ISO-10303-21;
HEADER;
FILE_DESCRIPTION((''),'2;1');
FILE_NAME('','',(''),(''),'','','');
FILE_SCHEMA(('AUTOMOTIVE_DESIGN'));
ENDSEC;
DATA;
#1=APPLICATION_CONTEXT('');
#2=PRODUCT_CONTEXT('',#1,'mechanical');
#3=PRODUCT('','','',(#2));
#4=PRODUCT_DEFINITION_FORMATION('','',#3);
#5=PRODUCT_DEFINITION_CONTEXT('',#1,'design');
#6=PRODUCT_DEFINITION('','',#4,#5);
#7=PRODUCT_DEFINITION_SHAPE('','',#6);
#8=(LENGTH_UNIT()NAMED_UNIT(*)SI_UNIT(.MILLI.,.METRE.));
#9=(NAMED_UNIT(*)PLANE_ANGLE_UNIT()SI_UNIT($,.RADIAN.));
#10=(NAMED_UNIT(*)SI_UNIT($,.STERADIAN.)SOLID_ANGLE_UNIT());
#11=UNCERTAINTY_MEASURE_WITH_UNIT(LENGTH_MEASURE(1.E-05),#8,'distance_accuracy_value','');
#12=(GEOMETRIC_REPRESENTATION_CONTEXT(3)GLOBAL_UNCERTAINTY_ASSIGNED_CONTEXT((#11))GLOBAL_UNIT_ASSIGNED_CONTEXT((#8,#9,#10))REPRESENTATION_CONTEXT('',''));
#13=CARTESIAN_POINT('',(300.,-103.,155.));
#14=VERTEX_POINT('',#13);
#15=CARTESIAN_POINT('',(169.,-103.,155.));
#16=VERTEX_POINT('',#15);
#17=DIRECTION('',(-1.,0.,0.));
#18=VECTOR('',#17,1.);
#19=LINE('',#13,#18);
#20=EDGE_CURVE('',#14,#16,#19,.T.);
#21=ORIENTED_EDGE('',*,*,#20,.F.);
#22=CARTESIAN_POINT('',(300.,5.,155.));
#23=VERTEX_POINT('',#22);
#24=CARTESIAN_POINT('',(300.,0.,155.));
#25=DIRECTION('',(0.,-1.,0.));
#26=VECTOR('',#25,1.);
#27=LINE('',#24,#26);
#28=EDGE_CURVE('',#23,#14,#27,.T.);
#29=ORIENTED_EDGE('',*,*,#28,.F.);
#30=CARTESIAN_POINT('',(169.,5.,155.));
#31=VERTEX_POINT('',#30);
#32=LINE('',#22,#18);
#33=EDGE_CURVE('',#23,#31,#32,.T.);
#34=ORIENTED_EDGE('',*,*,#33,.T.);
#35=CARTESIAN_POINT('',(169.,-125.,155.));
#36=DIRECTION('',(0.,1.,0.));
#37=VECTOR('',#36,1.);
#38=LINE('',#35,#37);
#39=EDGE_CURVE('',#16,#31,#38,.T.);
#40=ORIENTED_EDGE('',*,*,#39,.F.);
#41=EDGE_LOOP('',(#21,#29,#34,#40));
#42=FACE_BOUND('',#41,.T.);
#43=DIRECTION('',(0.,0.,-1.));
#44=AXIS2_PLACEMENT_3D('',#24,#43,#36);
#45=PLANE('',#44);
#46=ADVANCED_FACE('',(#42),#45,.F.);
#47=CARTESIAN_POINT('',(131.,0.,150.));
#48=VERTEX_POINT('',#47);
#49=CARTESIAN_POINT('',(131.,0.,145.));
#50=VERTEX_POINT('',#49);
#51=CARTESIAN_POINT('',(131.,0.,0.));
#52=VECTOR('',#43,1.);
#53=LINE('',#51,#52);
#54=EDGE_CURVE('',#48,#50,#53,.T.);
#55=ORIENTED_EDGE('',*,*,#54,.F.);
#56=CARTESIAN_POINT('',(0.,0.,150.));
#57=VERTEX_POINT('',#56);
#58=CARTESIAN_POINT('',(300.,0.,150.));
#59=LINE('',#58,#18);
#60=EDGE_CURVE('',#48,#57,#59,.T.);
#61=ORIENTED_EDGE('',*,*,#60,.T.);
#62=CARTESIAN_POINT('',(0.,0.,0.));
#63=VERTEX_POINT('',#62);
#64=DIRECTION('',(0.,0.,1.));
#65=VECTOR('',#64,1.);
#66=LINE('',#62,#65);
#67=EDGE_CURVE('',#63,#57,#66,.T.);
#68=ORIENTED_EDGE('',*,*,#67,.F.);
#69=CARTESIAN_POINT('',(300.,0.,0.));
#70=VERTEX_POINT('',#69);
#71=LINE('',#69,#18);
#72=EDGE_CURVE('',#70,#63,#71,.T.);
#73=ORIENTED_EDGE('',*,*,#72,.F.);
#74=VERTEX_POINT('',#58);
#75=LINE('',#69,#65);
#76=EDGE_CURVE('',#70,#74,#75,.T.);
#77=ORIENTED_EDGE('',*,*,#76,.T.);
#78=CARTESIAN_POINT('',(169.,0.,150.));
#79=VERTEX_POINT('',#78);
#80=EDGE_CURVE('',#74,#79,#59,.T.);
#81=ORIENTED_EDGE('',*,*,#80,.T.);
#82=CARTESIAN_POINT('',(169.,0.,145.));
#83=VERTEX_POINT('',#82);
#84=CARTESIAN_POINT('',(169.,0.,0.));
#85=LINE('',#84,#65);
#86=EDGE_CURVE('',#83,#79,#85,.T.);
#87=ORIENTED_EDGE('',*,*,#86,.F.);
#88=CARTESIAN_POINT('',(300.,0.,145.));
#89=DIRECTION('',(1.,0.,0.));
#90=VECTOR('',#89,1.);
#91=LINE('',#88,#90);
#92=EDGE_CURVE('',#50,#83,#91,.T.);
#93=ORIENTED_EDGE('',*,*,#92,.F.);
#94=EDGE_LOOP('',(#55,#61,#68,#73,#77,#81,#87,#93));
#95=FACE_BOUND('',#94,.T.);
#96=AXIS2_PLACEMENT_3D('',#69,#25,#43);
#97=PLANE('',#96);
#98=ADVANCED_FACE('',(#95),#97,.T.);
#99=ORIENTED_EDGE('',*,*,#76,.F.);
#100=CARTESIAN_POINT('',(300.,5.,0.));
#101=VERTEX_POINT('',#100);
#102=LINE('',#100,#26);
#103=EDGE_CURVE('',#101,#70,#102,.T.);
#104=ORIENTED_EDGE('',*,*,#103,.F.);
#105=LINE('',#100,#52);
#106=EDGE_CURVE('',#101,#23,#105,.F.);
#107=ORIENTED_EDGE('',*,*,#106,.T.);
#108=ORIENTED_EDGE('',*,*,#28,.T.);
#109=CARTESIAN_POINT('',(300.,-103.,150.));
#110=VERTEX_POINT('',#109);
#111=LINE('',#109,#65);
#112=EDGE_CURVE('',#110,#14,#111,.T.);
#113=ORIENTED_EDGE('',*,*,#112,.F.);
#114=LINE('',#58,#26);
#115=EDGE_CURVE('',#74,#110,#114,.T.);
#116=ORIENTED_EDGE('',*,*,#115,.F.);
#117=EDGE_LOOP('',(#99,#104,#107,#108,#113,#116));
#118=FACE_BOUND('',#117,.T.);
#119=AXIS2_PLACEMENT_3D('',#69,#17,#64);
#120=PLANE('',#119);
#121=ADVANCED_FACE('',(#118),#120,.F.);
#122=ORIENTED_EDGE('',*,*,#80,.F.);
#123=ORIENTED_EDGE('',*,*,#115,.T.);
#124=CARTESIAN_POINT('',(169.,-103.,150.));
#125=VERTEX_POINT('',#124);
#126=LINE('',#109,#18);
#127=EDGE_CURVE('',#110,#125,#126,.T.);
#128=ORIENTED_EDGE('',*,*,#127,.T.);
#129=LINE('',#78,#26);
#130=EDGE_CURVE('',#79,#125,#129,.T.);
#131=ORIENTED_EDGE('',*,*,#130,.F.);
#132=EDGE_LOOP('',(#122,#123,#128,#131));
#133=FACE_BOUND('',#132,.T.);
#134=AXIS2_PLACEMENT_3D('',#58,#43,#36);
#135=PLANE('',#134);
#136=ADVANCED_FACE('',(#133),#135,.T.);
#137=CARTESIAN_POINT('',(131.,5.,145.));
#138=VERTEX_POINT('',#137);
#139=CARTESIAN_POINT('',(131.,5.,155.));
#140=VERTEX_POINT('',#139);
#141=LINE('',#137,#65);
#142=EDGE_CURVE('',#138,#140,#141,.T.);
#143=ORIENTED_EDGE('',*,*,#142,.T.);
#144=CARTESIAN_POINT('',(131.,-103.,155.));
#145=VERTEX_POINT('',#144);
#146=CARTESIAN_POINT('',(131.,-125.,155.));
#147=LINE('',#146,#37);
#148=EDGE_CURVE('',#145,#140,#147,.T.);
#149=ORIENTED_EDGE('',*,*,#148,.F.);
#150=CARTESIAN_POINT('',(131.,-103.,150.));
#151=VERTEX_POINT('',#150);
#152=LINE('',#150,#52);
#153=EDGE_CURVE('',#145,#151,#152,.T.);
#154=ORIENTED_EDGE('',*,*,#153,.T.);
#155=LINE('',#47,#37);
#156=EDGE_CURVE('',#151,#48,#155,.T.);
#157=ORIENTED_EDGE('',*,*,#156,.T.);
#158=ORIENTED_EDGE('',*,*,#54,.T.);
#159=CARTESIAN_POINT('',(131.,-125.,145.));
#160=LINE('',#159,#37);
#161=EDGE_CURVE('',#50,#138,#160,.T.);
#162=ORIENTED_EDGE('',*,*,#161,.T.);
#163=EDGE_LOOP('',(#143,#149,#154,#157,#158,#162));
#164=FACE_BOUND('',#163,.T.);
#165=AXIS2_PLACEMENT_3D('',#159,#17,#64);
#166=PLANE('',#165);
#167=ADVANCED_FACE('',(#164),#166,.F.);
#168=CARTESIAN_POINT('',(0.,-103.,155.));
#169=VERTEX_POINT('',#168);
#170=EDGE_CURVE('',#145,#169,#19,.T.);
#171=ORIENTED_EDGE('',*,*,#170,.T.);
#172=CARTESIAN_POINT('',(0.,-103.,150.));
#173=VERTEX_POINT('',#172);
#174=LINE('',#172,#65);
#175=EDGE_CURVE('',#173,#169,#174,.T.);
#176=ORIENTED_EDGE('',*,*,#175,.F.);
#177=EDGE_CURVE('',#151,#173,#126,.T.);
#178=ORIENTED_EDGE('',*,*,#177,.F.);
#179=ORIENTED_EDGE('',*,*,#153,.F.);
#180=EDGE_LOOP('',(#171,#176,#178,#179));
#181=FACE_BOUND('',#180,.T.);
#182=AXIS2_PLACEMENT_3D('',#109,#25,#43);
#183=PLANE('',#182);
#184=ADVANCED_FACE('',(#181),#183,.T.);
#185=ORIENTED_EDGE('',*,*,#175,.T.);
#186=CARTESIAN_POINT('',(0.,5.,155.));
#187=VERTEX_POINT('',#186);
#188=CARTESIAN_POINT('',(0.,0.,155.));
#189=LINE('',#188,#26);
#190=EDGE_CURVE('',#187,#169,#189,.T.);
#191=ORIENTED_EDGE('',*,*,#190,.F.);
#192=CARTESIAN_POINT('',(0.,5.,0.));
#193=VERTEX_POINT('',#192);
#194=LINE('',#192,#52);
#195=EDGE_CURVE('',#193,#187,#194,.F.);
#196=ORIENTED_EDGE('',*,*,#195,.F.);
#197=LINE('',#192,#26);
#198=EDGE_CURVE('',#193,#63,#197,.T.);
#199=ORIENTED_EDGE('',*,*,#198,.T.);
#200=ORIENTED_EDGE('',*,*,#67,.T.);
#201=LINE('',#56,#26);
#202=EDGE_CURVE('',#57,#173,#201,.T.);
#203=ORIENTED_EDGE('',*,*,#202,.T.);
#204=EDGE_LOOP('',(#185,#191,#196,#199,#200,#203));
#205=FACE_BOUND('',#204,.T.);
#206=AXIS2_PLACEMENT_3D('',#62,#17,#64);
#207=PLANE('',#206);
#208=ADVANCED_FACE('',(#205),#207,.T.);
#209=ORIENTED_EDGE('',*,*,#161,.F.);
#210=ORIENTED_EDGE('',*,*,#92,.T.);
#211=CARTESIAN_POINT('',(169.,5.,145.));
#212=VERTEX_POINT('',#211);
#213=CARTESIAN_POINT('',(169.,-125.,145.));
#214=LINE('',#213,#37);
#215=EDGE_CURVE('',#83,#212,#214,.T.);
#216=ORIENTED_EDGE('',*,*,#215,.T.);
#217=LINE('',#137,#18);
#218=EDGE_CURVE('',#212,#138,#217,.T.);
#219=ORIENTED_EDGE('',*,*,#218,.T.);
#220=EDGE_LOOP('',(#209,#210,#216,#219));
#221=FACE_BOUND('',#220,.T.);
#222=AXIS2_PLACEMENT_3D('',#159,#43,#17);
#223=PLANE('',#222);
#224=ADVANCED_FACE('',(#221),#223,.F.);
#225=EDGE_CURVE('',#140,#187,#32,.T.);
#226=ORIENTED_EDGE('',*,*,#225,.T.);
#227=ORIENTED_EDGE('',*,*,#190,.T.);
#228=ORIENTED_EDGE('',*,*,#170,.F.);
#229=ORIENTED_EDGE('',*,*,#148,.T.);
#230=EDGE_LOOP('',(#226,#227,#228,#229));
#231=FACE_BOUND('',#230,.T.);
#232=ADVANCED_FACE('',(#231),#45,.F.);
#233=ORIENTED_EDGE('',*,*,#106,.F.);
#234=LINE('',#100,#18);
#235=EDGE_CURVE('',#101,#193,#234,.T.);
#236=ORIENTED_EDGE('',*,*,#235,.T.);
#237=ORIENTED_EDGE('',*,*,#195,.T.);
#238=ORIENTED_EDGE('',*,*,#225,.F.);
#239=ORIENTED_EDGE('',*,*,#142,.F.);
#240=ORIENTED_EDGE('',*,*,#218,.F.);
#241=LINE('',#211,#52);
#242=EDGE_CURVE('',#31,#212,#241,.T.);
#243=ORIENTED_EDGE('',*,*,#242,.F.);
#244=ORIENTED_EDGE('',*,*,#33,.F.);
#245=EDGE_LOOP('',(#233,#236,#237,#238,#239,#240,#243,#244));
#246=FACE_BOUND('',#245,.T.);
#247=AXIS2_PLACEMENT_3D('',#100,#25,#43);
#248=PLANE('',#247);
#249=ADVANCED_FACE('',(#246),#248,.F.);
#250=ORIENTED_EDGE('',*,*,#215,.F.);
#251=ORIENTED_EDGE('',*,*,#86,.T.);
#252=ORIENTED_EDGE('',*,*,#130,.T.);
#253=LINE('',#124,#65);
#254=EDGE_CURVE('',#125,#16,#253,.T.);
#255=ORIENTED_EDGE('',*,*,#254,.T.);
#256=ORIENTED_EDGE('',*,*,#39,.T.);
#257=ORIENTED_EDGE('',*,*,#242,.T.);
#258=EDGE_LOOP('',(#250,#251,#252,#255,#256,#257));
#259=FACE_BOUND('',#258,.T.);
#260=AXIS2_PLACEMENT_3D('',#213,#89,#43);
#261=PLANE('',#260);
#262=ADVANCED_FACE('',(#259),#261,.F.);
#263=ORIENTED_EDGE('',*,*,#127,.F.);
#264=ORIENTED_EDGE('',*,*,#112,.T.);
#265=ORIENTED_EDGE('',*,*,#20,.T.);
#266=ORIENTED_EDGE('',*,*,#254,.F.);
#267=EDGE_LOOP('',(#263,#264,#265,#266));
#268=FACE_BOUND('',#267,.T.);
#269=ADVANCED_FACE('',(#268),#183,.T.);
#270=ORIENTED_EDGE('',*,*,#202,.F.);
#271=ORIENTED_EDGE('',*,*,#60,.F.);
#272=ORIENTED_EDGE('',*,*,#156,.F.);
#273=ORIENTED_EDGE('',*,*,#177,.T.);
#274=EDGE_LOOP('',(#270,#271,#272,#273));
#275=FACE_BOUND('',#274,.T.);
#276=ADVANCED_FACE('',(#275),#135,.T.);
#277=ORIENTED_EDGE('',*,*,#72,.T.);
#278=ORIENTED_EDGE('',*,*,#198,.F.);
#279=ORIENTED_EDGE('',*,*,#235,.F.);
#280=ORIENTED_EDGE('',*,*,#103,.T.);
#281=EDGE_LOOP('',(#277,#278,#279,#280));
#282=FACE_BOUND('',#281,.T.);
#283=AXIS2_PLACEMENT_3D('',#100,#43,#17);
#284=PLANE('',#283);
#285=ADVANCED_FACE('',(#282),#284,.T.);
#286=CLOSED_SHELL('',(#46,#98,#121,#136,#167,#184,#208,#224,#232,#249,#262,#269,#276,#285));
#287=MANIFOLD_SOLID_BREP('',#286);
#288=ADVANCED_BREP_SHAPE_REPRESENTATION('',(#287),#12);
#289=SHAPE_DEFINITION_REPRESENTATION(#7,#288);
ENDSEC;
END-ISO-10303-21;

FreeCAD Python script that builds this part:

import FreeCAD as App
import Part
import Sketcher
Q = App.Units.Quantity


def add_polygon(sketch, points):
    """Adds a closed chain of lines whose ends are joined by coincident constraints."""
    first, n = sketch.GeometryCount, len(points)
    for a, b in zip(points, points[1:] + points[:1]):
        sketch.addGeometry(Part.LineSegment(App.Vector(*a, 0), App.Vector(*b, 0)), False)
    for i in range(n):
        sketch.addConstraint(Sketcher.Constraint("Coincident", first + i, 2, first + (i + 1) % n, 1))

doc = App.newDocument("Part")
body = doc.addObject("PartDesign::Body", "Body")

sketch1 = body.newObject("Sketcher::SketchObject", "Sketch")
sketch1.AttachmentSupport = (doc.getObject("YZ_Plane"), [""])
sketch1.MapMode = "FlatFace"
add_polygon(sketch1, [(0, 150), (0, 0), (5, 0), (5, 155), (-103, 155), (-103, 150)])
sketch1.addConstraint(Sketcher.Constraint("Vertical", 0))
sketch1.addConstraint(Sketcher.Constraint("Horizontal", 1))
sketch1.addConstraint(Sketcher.Constraint("Vertical", 2))
sketch1.addConstraint(Sketcher.Constraint("Horizontal", 3))
sketch1.addConstraint(Sketcher.Constraint("Vertical", 4))
sketch1.addConstraint(Sketcher.Constraint("Horizontal", 5))
sketch1.addConstraint(Sketcher.Constraint("Coincident", 0, 2, -1, 1))
sketch1.addConstraint(Sketcher.Constraint("Equal", 1, 4))
sketch1.addConstraint(Sketcher.Constraint("DistanceX", 1, 1, 1, 2, Q("5 mm")))
sketch1.addConstraint(Sketcher.Constraint("DistanceX", 3, 2, 3, 1, Q("108 mm")))
sketch1.addConstraint(Sketcher.Constraint("DistanceY", 0, 2, 0, 1, Q("150 mm")))
pad1 = body.newObject("PartDesign::Pad", "Pad")
pad1.Profile = sketch1
pad1.Length = 300

sketch2 = body.newObject("Sketcher::SketchObject", "Sketch001")
sketch2.AttachmentSupport = (doc.getObject("XZ_Plane"), [""])
sketch2.MapMode = "FlatFace"
sketch2.AttachmentOffset = App.Placement(App.Vector(0, 0, -5), App.Rotation())
add_polygon(sketch2, [(131, 145), (131, 155), (169, 155), (169, 145)])
sketch2.addConstraint(Sketcher.Constraint("Vertical", 0))
sketch2.addConstraint(Sketcher.Constraint("Horizontal", 1))
sketch2.addConstraint(Sketcher.Constraint("Vertical", 2))
sketch2.addConstraint(Sketcher.Constraint("Horizontal", 3))
sketch2.addConstraint(Sketcher.Constraint("DistanceX", 1, 1, 1, 2, Q("38 mm")))
sketch2.addConstraint(Sketcher.Constraint("DistanceY", 0, 1, 0, 2, Q("10 mm")))
sketch2.addConstraint(Sketcher.Constraint("DistanceX", -1, 1, 0, 2, Q("131 mm")))
sketch2.addConstraint(Sketcher.Constraint("DistanceY", -1, 1, 0, 2, Q("155 mm")))
pocket1 = body.newObject("PartDesign::Pocket", "Pocket")
pocket1.Profile = sketch2
pocket1.Length = 130
pocket1.Reversed = True

doc.recompute()
